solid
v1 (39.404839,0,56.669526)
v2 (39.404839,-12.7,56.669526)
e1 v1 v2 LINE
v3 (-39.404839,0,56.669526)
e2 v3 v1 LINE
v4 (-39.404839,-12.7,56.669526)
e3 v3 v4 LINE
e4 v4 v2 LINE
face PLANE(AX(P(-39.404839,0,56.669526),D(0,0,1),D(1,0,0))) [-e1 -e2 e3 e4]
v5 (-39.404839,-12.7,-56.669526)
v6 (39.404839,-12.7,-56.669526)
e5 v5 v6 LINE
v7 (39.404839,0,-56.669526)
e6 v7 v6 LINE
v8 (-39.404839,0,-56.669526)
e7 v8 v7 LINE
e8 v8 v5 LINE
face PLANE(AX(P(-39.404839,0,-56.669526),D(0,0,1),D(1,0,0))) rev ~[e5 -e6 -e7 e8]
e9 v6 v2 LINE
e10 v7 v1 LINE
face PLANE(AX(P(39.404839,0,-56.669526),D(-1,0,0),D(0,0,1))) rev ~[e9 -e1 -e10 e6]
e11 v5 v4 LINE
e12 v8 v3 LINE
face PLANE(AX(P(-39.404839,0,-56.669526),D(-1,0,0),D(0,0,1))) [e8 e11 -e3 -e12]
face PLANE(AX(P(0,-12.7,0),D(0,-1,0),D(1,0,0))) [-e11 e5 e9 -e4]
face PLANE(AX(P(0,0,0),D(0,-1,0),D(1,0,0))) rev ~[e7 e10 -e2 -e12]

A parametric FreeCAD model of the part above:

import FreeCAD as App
import Part
import Sketcher

V = App.Vector


def add_polygon(sketch, points):
    """Adds a closed chain of lines whose ends are joined by coincident constraints."""
    first, n = sketch.GeometryCount, len(points)
    for a, b in zip(points, points[1:] + points[:1]):
        sketch.addGeometry(Part.LineSegment(App.Vector(*a, 0), App.Vector(*b, 0)), False)
    for i in range(n):
        sketch.addConstraint(Sketcher.Constraint("Coincident", first + i, 2, first + (i + 1) % n, 1))

doc = App.newDocument("Part")
params = doc.addObject("Spreadsheet::Sheet", "Params")
for row, (alias, value) in enumerate([
    ("pad1_length", "0.5 in"),
], start=1):
    params.set(f"A{row}", alias)
    params.set(f"B{row}", "=" + value)
    params.setAlias(f"B{row}", alias)

body = doc.addObject("PartDesign::Body", "Body")

# Sketch on XZ plane
sketch1 = body.newObject("Sketcher::SketchObject", "Sketch")
sketch1.AttachmentSupport = (doc.getObject("XZ_Plane"), [""])
sketch1.MapMode = "FlatFace"
add_polygon(sketch1, [(-39.404839, 56.669526), (-39.404839, -56.669526), (39.404839, -56.669526), (39.404839, 56.669526)])  # lines 0-3
sketch1.addConstraint([
    Sketcher.Constraint("Vertical", 0),
    Sketcher.Constraint("Horizontal", 1),
    Sketcher.Constraint("Vertical", 2),
    Sketcher.Constraint("Horizontal", 3),
    Sketcher.Constraint("Symmetric", 0, 2, 2, 2, -1, 1),
    Sketcher.Constraint("DistanceX", 1, 1, 1, 2, 78.809678),
    Sketcher.Constraint("DistanceY", 0, 2, 0, 1, 113.339052),
])
pad1 = body.newObject("PartDesign::Pad", "Pad")
pad1.Profile = sketch1
pad1.setExpression("Length", "Params.pad1_length")

doc.recompute()
